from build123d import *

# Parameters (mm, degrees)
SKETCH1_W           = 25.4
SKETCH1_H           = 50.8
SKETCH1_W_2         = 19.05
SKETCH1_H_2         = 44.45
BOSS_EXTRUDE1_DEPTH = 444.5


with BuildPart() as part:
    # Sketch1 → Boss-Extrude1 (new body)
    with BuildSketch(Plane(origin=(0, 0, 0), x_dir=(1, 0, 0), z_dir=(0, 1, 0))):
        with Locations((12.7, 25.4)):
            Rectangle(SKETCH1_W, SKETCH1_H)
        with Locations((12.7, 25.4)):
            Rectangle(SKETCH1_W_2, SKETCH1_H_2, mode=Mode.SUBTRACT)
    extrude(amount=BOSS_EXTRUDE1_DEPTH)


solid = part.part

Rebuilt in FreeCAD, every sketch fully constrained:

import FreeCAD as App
import Part
import Sketcher

V = App.Vector
Q = App.Units.Quantity


def add_polygon(sketch, points):
    """Adds a closed chain of lines whose ends are joined by coincident constraints."""
    first, n = sketch.GeometryCount, len(points)
    for a, b in zip(points, points[1:] + points[:1]):
        sketch.addGeometry(Part.LineSegment(App.Vector(*a, 0), App.Vector(*b, 0)), False)
    for i in range(n):
        sketch.addConstraint(Sketcher.Constraint("Coincident", first + i, 2, first + (i + 1) % n, 1))

doc = App.newDocument("Part")
params = doc.addObject("Spreadsheet::Sheet", "Params")
for row, (alias, value) in enumerate([
    ("sketch1_width", "1 in"),
    ("sketch1_height", "2 in"),
    ("sketch1_width2", "0.75 in"),
    ("sketch1_height2", "1.75 in"),
    ("pad1_length", "17.5 in"),
], start=1):
    params.set(f"A{row}", alias)
    params.set(f"B{row}", "=" + value)
    params.setAlias(f"B{row}", alias)

body = doc.addObject("PartDesign::Body", "Body")

sketch1 = body.newObject("Sketcher::SketchObject", "Sketch")
sketch1.AttachmentSupport = (doc.getObject("XZ_Plane"), [""])
sketch1.MapMode = "FlatFace"
add_polygon(sketch1, [(0, -50.8), (0, 0), (25.4, 0), (25.4, -50.8)])
add_polygon(sketch1, [(22.225, -3.175), (3.175, -3.175), (3.175, -47.625), (22.225, -47.625)])
sketch1.addConstraint([
    Sketcher.Constraint("Vertical", 0),
    Sketcher.Constraint("Horizontal", 1),
    Sketcher.Constraint("Vertical", 2),
    Sketcher.Constraint("Horizontal", 3),
    Sketcher.Constraint("Horizontal", 4),
    Sketcher.Constraint("Vertical", 5),
    Sketcher.Constraint("Horizontal", 6),
    Sketcher.Constraint("Vertical", 7),
    Sketcher.Constraint("Coincident", 0, 2, -1, 1),
    Sketcher.Constraint("DistanceX", 1, 1, 1, 2, Q("1 in")),
    Sketcher.Constraint("DistanceY", 0, 1, 0, 2, Q("2 in")),
    Sketcher.Constraint("DistanceX", 4, 2, 4, 1, Q("0.75 in")),
    Sketcher.Constraint("DistanceY", 5, 2, 5, 1, Q("1.75 in")),
    Sketcher.Constraint("DistanceX", -1, 1, 4, 2, Q("0.125 in")),
    Sketcher.Constraint("DistanceY", 4, 2, -1, 1, Q("0.125 in")),
])
sketch1.setExpression("Constraints[17]", "Params.sketch1_width")
sketch1.setExpression("Constraints[18]", "Params.sketch1_height")
sketch1.setExpression("Constraints[19]", "Params.sketch1_width2")
sketch1.setExpression("Constraints[20]", "Params.sketch1_height2")
pad1 = body.newObject("PartDesign::Pad", "Pad")
pad1.Profile = sketch1
pad1.setExpression("Length", "Params.pad1_length")
pad1.Reversed = True

doc.recompute()
